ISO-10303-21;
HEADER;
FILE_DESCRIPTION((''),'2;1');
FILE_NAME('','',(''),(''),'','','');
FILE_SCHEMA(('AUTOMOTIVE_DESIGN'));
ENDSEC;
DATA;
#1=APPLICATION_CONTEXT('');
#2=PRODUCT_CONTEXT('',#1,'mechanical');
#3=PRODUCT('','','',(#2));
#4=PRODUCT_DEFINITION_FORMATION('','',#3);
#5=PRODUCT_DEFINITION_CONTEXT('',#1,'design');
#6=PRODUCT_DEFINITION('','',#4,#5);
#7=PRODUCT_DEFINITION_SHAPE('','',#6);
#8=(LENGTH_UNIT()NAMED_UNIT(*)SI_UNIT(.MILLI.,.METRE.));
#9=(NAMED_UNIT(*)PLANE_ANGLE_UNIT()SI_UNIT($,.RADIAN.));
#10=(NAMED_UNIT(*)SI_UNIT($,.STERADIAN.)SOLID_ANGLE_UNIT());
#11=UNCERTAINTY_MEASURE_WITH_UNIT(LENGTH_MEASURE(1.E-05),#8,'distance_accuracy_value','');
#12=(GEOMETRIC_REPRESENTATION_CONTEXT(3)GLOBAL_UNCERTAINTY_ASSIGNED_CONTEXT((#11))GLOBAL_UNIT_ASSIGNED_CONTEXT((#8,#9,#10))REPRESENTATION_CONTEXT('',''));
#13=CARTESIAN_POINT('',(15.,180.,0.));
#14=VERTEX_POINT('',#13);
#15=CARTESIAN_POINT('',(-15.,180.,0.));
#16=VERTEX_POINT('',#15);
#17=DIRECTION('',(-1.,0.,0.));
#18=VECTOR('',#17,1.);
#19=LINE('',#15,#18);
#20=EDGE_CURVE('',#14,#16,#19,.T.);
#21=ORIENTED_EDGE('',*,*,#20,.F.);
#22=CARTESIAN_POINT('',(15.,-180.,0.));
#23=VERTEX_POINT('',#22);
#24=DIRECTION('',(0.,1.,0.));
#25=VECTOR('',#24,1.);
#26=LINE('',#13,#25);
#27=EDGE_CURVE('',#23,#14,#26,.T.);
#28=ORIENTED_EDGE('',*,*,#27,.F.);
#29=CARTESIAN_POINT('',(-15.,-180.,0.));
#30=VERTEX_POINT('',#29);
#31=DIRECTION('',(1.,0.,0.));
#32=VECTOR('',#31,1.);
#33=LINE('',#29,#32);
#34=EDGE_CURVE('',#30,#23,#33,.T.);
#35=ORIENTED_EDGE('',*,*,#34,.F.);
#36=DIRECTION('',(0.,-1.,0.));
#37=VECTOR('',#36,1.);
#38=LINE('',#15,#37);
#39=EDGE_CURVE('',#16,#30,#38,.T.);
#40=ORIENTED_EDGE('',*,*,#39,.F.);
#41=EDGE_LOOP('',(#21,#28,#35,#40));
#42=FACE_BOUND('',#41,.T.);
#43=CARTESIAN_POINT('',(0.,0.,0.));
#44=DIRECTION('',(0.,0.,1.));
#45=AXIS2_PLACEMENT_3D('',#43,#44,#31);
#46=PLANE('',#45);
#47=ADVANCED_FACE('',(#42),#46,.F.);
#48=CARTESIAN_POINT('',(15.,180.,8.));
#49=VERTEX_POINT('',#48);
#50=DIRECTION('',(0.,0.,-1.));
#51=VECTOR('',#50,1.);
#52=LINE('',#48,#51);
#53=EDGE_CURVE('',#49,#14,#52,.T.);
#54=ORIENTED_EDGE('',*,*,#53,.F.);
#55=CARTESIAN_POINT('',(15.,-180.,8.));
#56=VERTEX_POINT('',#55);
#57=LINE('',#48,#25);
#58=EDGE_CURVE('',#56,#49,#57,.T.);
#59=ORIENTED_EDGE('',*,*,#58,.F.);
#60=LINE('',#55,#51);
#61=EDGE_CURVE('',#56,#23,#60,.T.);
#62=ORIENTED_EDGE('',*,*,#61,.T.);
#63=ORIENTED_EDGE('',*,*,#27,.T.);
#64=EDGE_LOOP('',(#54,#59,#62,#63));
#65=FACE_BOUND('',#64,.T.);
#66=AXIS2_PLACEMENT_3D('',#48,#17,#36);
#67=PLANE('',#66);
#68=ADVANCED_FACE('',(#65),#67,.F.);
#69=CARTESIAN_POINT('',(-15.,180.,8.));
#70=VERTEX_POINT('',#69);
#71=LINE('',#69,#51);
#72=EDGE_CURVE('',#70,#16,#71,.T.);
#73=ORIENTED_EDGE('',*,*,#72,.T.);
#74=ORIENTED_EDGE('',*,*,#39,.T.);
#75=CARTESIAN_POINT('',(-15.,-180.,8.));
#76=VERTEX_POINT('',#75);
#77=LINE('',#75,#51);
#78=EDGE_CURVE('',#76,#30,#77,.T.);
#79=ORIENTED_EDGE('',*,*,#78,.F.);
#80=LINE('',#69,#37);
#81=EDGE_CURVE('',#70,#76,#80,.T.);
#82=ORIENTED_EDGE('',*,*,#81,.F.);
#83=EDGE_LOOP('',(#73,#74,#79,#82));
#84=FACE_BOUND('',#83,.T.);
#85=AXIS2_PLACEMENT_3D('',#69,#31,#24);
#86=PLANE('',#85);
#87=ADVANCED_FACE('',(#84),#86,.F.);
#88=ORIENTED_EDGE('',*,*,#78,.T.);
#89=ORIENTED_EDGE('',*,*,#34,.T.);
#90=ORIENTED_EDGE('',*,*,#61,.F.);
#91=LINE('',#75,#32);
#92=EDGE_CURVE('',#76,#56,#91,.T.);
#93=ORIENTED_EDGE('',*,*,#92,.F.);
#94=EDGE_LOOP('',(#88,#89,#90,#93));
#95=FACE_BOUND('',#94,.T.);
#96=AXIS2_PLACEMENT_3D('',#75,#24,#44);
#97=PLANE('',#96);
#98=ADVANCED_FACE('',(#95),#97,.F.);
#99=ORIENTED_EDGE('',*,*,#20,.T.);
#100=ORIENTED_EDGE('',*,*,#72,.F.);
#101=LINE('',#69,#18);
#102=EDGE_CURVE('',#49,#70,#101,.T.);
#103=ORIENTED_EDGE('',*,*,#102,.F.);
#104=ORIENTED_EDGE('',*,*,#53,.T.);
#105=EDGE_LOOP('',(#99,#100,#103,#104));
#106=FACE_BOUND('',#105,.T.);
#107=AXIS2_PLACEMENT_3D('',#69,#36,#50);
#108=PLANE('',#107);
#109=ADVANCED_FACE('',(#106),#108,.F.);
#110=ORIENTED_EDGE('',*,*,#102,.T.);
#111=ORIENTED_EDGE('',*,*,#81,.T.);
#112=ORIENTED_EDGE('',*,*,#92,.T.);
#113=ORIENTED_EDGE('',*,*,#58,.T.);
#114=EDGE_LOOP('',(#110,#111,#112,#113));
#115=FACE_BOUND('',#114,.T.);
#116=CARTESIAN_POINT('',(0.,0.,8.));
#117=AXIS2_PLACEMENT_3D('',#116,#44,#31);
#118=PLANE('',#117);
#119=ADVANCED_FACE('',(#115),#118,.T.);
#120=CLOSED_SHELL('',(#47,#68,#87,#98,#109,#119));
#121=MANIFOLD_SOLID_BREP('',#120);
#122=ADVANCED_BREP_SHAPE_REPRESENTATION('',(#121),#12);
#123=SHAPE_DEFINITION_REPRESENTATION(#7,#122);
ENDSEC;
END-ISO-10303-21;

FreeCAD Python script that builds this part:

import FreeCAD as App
import Part
import Sketcher
from FreeCAD import Vector

doc = App.newDocument("Part")
body = doc.addObject("PartDesign::Body", "Body")

sketch1 = body.newObject("Sketcher::SketchObject", "Sketch")
sketch1.AttachmentSupport = (doc.getObject("XY_Plane"), [""])
sketch1.MapMode = "FlatFace"
sketch1.addGeometry(Part.LineSegment(Vector(-15, 180, 0), Vector(-15, -180, 0)), False)
sketch1.addGeometry(Part.LineSegment(Vector(-15, -180, 0), Vector(15, -180, 0)), False)
sketch1.addGeometry(Part.LineSegment(Vector(15, -180, 0), Vector(15, 180, 0)), False)
sketch1.addGeometry(Part.LineSegment(Vector(15, 180, 0), Vector(-15, 180, 0)), False)
sketch1.addConstraint(Sketcher.Constraint("Coincident", 0, 2, 1, 1))
sketch1.addConstraint(Sketcher.Constraint("Coincident", 1, 2, 2, 1))
sketch1.addConstraint(Sketcher.Constraint("Coincident", 2, 2, 3, 1))
sketch1.addConstraint(Sketcher.Constraint("Coincident", 3, 2, 0, 1))
sketch1.addConstraint(Sketcher.Constraint("Vertical", 0))
sketch1.addConstraint(Sketcher.Constraint("Horizontal", 1))
sketch1.addConstraint(Sketcher.Constraint("Vertical", 2))
sketch1.addConstraint(Sketcher.Constraint("Horizontal", 3))
sketch1.addConstraint(Sketcher.Constraint("Symmetric", 0, 2, 2, 2, -1, 1))
sketch1.addConstraint(Sketcher.Constraint("DistanceX", 1, 1, 1, 2, 30.0))
sketch1.addConstraint(Sketcher.Constraint("DistanceY", 0, 2, 0, 1, 360.0))
pad1 = body.newObject("PartDesign::Pad", "Pad")
pad1.Profile = sketch1
pad1.Length = 8

doc.recompute()
